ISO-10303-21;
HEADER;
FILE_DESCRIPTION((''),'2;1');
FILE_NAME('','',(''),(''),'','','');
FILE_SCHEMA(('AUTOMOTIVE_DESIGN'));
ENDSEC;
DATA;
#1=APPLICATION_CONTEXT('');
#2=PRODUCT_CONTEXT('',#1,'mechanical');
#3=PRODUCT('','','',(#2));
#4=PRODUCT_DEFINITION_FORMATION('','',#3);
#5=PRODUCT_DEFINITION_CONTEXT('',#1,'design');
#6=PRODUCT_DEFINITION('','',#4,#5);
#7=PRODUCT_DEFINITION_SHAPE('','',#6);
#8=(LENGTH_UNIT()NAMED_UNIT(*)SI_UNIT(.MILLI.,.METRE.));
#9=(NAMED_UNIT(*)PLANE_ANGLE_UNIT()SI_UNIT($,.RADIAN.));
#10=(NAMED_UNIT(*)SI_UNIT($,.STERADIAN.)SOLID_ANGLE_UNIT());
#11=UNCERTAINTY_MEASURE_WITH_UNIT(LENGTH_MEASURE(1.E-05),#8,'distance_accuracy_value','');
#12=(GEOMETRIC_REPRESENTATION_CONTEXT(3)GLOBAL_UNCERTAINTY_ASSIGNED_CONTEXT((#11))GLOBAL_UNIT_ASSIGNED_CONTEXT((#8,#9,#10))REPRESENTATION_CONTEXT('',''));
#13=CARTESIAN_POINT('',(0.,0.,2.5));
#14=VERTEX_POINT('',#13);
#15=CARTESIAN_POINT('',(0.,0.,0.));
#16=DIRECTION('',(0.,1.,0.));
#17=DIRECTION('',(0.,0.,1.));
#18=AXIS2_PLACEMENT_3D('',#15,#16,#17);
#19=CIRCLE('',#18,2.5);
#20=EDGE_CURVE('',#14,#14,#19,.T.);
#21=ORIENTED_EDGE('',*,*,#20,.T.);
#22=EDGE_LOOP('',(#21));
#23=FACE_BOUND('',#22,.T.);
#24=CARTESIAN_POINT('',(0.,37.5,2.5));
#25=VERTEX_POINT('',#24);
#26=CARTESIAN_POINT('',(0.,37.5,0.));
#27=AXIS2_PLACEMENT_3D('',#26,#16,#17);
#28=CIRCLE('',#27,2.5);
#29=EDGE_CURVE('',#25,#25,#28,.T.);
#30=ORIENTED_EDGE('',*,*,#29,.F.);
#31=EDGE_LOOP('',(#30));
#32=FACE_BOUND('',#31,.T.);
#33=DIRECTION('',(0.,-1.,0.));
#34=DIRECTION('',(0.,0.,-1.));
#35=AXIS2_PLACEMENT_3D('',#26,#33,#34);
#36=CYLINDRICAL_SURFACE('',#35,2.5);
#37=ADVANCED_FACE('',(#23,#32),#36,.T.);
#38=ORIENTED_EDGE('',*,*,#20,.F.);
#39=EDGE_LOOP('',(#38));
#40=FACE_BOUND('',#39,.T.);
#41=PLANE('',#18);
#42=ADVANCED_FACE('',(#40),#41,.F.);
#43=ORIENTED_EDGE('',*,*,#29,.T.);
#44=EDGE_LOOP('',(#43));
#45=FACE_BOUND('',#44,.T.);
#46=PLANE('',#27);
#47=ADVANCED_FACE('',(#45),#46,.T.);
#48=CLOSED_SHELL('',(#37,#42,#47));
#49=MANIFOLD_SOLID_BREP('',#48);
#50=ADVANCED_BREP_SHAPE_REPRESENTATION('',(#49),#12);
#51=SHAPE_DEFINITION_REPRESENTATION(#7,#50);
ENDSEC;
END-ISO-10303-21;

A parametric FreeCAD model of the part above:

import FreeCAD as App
import Part
import Sketcher
from FreeCAD import Vector
Q = App.Units.Quantity

doc = App.newDocument("Part")
body = doc.addObject("PartDesign::Body", "Body")

sketch1 = body.newObject("Sketcher::SketchObject", "Sketch")
sketch1.AttachmentSupport = (doc.getObject("XZ_Plane"), [""])
sketch1.MapMode = "FlatFace"
sketch1.addGeometry(Part.Circle(Vector(0, 0, 0), Vector(0, 0, 1), 2.5), False)
sketch1.addConstraint(Sketcher.Constraint("Coincident", 0, 3, -1, 1))
sketch1.addConstraint(Sketcher.Constraint("Diameter", 0, Q("5 mm")))
pad1 = body.newObject("PartDesign::Pad", "Pad")
pad1.Profile = sketch1
pad1.Length = 37.5
pad1.Reversed = True

doc.recompute()
